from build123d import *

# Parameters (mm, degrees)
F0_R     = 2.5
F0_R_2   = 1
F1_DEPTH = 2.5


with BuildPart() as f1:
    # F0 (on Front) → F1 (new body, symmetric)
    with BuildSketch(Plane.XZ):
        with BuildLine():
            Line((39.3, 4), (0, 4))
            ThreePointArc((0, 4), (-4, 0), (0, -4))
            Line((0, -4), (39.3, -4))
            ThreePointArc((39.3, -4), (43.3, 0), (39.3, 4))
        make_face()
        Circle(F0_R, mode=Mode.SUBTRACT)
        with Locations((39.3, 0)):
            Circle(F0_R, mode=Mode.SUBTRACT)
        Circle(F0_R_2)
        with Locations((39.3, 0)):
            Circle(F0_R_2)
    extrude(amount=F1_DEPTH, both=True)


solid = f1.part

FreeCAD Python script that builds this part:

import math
import FreeCAD as App
import Part
import Sketcher
Q = App.Units.Quantity

doc = App.newDocument("Part")
body = doc.addObject("PartDesign::Body", "Body")
body.AllowCompound = True

# Sketch on XZ plane
sketch1 = doc.addObject("Sketcher::SketchObject", "Sketch")
body.addObject(sketch1)
sketch1.AttachmentSupport = (doc.XZ_Plane, [""])
sketch1.MapMode = "FlatFace"
sketch1.addGeometry([
    Part.LineSegment(App.Vector(39.3, 4, 0), App.Vector(0, 4, 0)),  # 0
    Part.ArcOfCircle(Part.Circle(App.Vector(0, 0, 0), App.Vector(0, 0, 1), 4), math.radians(90), math.radians(270)),  # 1
    Part.LineSegment(App.Vector(0, -4, 0), App.Vector(39.3, -4, 0)),  # 2
    Part.ArcOfCircle(Part.Circle(App.Vector(39.3, 0, 0), App.Vector(0, 0, 1), 4), math.radians(-90), math.radians(90)),  # 3
    Part.Circle(App.Vector(0, 0, 0), App.Vector(0, 0, 1), 2.5),  # 4
    Part.Circle(App.Vector(39.3, 0, 0), App.Vector(0, 0, 1), 2.5),  # 5
    Part.Circle(App.Vector(0, 0, 0), App.Vector(0, 0, 1), 1),  # 6
    Part.Circle(App.Vector(39.3, 0, 0), App.Vector(0, 0, 1), 1),  # 7
], False)
sketch1.addConstraint([
    Sketcher.Constraint("Tangent", 0, 2, 1, 1),
    Sketcher.Constraint("Tangent", 1, 2, 2, 1),
    Sketcher.Constraint("Tangent", 2, 2, 3, 1),
    Sketcher.Constraint("Tangent", 3, 2, 0, 1),
    Sketcher.Constraint("Horizontal", 0),
    Sketcher.Constraint("Horizontal", 2),
    Sketcher.Constraint("Coincident", 1, 3, -1, 1),
    Sketcher.Constraint("Coincident", 4, 3, -1, 1),
    Sketcher.Constraint("Coincident", 6, 3, -1, 1),
    Sketcher.Constraint("Coincident", 5, 3, 3, 3),
    Sketcher.Constraint("Coincident", 7, 3, 3, 3),
    Sketcher.Constraint("Equal", 4, 5),
    Sketcher.Constraint("Equal", 6, 7),
    Sketcher.Constraint("Diameter", 4, Q("5 mm")),
    Sketcher.Constraint("Diameter", 6, Q("2 mm")),
    Sketcher.Constraint("Radius", 1, Q("4 mm")),
    Sketcher.Constraint("DistanceX", 0, 2, 0, 1, Q("39.3 mm")),
])
pad1 = doc.addObject("PartDesign::Pad", "Pad")
body.addObject(pad1)
pad1.Profile = sketch1
pad1.Length = 5
pad1.Midplane = True

doc.recompute()
